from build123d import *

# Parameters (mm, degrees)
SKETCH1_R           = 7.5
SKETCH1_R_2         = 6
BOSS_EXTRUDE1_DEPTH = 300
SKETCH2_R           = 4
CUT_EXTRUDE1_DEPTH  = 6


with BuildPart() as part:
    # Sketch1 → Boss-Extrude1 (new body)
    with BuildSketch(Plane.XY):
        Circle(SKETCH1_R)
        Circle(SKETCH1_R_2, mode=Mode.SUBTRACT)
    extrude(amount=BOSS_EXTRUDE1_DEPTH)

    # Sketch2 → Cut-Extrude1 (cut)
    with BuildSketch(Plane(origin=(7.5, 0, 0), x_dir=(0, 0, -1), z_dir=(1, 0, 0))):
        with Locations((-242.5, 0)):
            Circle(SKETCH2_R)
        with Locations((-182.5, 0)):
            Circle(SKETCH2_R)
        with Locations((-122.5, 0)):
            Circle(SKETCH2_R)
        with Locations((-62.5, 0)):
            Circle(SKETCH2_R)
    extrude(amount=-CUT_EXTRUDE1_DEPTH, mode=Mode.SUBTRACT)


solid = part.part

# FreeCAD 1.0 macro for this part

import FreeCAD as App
import Part
import Sketcher
Q = App.Units.Quantity

doc = App.newDocument("Part")
params = doc.addObject("Spreadsheet::Sheet", "Params")
for row, (alias, value) in enumerate([
    ("sketch1_diameter", "15 mm"),
    ("sketch1_diameter2", "12 mm"),
    ("pad1_length", "300 mm"),
    ("sketch2_diameter", "8 mm"),
    ("pocket1_length", "6 mm"),
], start=1):
    params.set(f"A{row}", alias)
    params.set(f"B{row}", "=" + value)
    params.setAlias(f"B{row}", alias)

body = doc.addObject("PartDesign::Body", "Body")

sketch1 = body.newObject("Sketcher::SketchObject", "Sketch")
sketch1.AttachmentSupport = (doc.getObject("XY_Plane"), [""])
sketch1.MapMode = "FlatFace"
sketch1.addGeometry([
    Part.Circle(App.Vector(0, 0, 0), App.Vector(0, 0, 1), 8),
    Part.Circle(App.Vector(0, 0, 0), App.Vector(0, 0, 1), 6),
], False)
sketch1.addConstraint([
    Sketcher.Constraint("Coincident", 0, 3, -1, 1),
    Sketcher.Constraint("Coincident", 1, 3, -1, 1),
    Sketcher.Constraint("Diameter", 0, Q("15 mm")),
    Sketcher.Constraint("Diameter", 1, Q("12 mm")),
])
sketch1.setExpression("Constraints[2]", "Params.sketch1_diameter")
sketch1.setExpression("Constraints[3]", "Params.sketch1_diameter2")
pad1 = body.newObject("PartDesign::Pad", "Pad")
pad1.Profile = sketch1
pad1.setExpression("Length", "Params.pad1_length")

sketch2 = body.newObject("Sketcher::SketchObject", "Sketch001")
sketch2.AttachmentSupport = (doc.getObject("YZ_Plane"), [""])
sketch2.MapMode = "FlatFace"
sketch2.AttachmentOffset = App.Placement(App.Vector(0, 0, 7.5), App.Rotation())
sketch2.addGeometry([
    Part.Circle(App.Vector(0, 242.5, 0), App.Vector(0, 0, 1), 4),
    Part.Circle(App.Vector(0, 182.5, 0), App.Vector(0, 0, 1), 4),
    Part.Circle(App.Vector(0, 122.5, 0), App.Vector(0, 0, 1), 4),
    Part.Circle(App.Vector(0, 62.5, 0), App.Vector(0, 0, 1), 4),
], False)
sketch2.addConstraint([
    Sketcher.Constraint("Equal", 0, 1),
    Sketcher.Constraint("Equal", 1, 2),
    Sketcher.Constraint("Equal", 2, 3),
    Sketcher.Constraint("PointOnObject", 0, 3, -2),
    Sketcher.Constraint("PointOnObject", 1, 3, -2),
    Sketcher.Constraint("PointOnObject", 2, 3, -2),
    Sketcher.Constraint("PointOnObject", 3, 3, -2),
    Sketcher.Constraint("Diameter", 0, Q("8 mm")),
    Sketcher.Constraint("DistanceY", 1, 3, 0, 3, Q("60 mm")),
    Sketcher.Constraint("DistanceY", 2, 3, 1, 3, Q("60 mm")),
    Sketcher.Constraint("DistanceY", 3, 3, 2, 3, Q("60 mm")),
    Sketcher.Constraint("DistanceY", -1, 1, 0, 3, Q("242.5 mm")),
])
sketch2.setExpression("Constraints[7]", "Params.sketch2_diameter")
pocket1 = body.newObject("PartDesign::Pocket", "Pocket")
pocket1.Profile = sketch2
pocket1.setExpression("Length", "Params.pocket1_length")

doc.recompute()
